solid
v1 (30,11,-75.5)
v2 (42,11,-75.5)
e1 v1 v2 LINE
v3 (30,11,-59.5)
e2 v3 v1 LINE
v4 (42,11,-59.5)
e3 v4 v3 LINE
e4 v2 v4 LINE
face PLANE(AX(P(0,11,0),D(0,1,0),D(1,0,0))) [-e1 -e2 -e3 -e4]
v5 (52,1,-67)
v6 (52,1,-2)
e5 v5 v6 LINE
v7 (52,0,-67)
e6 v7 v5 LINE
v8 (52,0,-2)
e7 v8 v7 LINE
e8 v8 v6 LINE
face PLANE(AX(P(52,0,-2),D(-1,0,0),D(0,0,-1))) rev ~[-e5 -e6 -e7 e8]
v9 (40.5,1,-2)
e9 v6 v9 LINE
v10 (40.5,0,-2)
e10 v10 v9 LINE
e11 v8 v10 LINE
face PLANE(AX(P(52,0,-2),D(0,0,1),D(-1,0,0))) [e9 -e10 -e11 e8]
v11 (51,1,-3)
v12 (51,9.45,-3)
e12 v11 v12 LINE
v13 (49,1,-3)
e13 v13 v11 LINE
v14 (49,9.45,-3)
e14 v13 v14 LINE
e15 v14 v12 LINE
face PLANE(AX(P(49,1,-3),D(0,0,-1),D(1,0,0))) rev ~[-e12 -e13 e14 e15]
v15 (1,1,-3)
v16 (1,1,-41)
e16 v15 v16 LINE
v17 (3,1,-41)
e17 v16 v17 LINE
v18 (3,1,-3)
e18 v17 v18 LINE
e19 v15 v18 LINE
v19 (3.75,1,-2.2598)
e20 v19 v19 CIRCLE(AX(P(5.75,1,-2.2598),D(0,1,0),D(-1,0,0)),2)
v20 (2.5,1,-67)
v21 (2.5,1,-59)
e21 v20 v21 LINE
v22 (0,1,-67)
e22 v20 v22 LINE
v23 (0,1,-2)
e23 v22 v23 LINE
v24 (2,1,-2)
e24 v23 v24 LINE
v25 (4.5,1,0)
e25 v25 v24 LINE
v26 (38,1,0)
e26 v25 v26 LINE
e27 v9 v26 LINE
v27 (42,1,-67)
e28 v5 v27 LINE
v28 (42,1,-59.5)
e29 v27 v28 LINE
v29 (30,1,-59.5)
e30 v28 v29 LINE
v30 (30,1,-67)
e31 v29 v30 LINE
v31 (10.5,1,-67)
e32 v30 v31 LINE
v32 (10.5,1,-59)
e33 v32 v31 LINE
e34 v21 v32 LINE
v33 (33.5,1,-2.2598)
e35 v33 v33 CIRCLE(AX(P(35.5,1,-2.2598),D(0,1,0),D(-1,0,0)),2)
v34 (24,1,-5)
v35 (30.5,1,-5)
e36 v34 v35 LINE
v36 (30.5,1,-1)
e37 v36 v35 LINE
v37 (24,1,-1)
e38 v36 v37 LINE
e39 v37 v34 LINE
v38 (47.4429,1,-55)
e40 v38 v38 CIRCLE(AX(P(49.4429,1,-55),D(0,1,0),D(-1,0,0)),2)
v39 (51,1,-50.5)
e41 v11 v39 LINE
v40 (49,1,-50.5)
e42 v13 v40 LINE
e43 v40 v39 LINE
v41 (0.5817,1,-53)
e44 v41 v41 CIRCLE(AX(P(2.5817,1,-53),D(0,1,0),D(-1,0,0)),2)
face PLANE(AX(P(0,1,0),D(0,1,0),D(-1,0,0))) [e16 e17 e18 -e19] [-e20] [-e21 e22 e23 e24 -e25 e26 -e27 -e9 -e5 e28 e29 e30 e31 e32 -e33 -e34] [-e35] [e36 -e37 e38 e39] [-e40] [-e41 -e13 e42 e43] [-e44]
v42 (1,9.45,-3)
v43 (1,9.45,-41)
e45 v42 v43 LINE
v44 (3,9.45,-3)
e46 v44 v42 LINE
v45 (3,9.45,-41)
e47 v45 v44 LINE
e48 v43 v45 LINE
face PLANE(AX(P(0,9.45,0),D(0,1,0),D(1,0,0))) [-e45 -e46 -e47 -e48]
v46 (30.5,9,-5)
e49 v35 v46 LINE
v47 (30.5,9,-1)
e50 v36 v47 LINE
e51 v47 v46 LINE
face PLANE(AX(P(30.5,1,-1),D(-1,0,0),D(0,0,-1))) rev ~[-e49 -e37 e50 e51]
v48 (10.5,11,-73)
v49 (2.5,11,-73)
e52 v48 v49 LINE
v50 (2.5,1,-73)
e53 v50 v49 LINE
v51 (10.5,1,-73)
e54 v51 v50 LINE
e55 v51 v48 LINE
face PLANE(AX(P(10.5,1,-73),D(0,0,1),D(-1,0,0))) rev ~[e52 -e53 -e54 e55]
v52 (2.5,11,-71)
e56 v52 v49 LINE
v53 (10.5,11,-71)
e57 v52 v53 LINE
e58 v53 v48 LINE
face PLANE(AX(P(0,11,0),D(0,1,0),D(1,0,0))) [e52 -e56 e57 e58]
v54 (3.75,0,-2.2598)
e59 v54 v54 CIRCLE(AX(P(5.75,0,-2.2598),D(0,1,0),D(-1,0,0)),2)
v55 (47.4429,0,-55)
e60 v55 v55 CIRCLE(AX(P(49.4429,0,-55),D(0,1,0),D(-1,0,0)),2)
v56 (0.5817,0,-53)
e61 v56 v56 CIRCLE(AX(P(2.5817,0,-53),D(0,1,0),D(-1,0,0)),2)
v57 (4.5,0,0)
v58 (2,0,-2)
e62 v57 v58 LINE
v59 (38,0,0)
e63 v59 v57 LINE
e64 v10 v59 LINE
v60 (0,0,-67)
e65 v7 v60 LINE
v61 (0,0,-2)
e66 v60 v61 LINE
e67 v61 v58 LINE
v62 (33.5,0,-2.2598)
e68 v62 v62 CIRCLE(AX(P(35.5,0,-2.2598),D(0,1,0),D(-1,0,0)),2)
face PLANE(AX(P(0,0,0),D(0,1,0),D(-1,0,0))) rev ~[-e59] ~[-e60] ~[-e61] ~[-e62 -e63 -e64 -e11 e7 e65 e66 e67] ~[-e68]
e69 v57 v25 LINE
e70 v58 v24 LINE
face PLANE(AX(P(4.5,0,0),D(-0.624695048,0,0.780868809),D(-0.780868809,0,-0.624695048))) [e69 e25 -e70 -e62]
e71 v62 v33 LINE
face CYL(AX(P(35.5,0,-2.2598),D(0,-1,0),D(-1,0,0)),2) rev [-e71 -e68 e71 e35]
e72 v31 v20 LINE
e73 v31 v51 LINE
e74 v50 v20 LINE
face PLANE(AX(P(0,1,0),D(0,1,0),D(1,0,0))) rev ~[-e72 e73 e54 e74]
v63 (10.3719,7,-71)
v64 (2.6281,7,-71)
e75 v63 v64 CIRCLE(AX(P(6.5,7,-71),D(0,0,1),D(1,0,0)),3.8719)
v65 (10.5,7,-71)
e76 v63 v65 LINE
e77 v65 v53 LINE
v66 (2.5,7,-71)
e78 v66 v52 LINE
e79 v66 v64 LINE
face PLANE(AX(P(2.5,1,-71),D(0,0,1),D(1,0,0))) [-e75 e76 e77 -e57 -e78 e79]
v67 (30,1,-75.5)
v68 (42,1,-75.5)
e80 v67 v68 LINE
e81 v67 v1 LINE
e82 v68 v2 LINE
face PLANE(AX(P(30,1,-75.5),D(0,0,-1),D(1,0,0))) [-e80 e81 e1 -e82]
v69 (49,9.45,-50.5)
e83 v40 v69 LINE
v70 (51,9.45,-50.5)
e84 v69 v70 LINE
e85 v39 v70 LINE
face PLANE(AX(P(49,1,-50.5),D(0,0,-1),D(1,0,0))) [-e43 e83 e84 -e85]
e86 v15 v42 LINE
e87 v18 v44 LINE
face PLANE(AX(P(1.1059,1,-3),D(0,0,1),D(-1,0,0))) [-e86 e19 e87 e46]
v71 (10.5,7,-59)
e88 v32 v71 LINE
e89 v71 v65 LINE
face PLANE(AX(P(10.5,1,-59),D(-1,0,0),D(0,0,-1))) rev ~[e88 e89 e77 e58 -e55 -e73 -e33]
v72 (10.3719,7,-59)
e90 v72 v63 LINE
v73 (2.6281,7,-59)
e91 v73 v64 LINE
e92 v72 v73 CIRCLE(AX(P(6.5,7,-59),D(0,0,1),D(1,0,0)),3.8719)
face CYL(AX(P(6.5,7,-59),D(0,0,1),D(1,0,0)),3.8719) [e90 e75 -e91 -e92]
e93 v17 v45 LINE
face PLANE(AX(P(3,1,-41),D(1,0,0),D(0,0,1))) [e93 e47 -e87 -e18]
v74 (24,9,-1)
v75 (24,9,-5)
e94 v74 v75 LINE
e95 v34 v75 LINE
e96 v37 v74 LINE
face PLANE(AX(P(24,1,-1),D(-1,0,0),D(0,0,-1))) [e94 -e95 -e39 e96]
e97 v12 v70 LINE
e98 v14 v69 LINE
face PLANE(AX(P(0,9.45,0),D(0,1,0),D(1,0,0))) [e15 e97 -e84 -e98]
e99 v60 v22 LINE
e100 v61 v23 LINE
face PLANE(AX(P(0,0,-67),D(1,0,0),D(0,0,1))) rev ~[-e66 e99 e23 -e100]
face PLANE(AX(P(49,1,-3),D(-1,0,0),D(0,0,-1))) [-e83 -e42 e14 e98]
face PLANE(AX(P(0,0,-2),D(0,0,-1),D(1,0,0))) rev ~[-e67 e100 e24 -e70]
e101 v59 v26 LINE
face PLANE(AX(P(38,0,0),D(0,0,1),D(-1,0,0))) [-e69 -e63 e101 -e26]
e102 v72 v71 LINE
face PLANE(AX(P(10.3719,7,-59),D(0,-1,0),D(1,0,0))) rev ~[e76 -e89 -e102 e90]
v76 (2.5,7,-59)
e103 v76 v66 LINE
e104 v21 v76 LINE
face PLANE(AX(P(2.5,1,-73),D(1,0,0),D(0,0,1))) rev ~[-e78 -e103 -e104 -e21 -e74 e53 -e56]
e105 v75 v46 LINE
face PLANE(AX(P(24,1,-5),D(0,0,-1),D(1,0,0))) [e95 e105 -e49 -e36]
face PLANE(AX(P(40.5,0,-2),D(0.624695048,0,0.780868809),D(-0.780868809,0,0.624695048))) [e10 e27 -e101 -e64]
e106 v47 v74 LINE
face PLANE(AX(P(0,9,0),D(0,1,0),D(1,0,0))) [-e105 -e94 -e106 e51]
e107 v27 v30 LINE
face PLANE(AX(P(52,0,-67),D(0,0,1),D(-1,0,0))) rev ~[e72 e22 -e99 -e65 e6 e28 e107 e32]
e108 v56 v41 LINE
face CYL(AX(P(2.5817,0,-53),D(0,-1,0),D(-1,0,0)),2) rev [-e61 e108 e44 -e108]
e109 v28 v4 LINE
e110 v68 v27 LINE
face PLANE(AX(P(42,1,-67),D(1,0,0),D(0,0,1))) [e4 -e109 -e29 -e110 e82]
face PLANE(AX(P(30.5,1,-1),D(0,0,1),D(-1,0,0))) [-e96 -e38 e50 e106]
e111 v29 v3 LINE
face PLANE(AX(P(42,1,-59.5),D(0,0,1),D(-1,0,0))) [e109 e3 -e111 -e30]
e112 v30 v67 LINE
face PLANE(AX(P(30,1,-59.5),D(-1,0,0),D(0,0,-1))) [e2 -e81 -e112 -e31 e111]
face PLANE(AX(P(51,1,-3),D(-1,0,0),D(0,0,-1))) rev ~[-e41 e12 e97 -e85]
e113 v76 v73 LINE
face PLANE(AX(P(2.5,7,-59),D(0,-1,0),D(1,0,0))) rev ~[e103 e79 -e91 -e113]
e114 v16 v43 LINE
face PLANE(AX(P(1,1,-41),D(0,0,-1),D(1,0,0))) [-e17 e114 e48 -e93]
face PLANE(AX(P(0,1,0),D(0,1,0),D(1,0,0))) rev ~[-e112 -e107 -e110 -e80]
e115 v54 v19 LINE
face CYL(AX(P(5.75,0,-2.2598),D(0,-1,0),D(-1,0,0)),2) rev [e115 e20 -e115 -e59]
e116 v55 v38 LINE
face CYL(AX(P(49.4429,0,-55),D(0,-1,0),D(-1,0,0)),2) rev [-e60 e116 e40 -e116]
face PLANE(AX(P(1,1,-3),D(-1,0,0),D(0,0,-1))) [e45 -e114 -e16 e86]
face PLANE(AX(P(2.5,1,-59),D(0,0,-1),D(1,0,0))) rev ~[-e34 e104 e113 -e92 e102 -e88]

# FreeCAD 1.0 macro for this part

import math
import FreeCAD as App
import Part
import Sketcher

V = App.Vector
Q = App.Units.Quantity

doc = App.newDocument("Part")
body = doc.addObject("PartDesign::Body", "Body")

sketch1 = doc.addObject("Sketcher::SketchObject", "Sketch")
body.addObject(sketch1)
sketch1.AttachmentSupport = (doc.XZ_Plane, [""])
sketch1.MapMode = "FlatFace"
sketch1.addGeometry(Part.LineSegment(V(40.5, -2, 0), V(52, -2, 0)), False)
sketch1.addGeometry(Part.LineSegment(V(52, -2, 0), V(52, -67, 0)), False)
sketch1.addGeometry(Part.LineSegment(V(52, -67, 0), V(0, -67, 0)), False)
sketch1.addGeometry(Part.LineSegment(V(0, -67, 0), V(0, -2, 0)), False)
sketch1.addGeometry(Part.LineSegment(V(0, -2, 0), V(2, -2, 0)), False)
sketch1.addGeometry(Part.LineSegment(V(2, -2, 0), V(4.5, 0, 0)), False)
sketch1.addGeometry(Part.LineSegment(V(4.5, 0, 0), V(38, 0, 0)), False)
sketch1.addGeometry(Part.LineSegment(V(38, 0, 0), V(40.5, -2, 0)), False)
sketch1.addGeometry(Part.Circle(V(49.4, -55, 0), V(0, 0, 1), 2), False)
sketch1.addGeometry(Part.Circle(V(2.6, -53, 0), V(0, 0, 1), 2), False)
sketch1.addGeometry(Part.Circle(V(35.5, -2.3, 0), V(0, 0, 1), 2), False)
sketch1.addGeometry(Part.Circle(V(5.8, -2.3, 0), V(0, 0, 1), 2), False)
sketch1.addConstraint(Sketcher.Constraint("Coincident", 0, 2, 1, 1))
sketch1.addConstraint(Sketcher.Constraint("Coincident", 1, 2, 2, 1))
sketch1.addConstraint(Sketcher.Constraint("Coincident", 2, 2, 3, 1))
sketch1.addConstraint(Sketcher.Constraint("Coincident", 3, 2, 4, 1))
sketch1.addConstraint(Sketcher.Constraint("Coincident", 4, 2, 5, 1))
sketch1.addConstraint(Sketcher.Constraint("Coincident", 5, 2, 6, 1))
sketch1.addConstraint(Sketcher.Constraint("Coincident", 6, 2, 7, 1))
sketch1.addConstraint(Sketcher.Constraint("Coincident", 7, 2, 0, 1))
sketch1.addConstraint(Sketcher.Constraint("Horizontal", 0))
sketch1.addConstraint(Sketcher.Constraint("Vertical", 1))
sketch1.addConstraint(Sketcher.Constraint("Horizontal", 2))
sketch1.addConstraint(Sketcher.Constraint("Vertical", 3))
sketch1.addConstraint(Sketcher.Constraint("Horizontal", 4))
sketch1.addConstraint(Sketcher.Constraint("Horizontal", 6))
sketch1.addConstraint(Sketcher.Constraint("Equal", 8, 9))
sketch1.addConstraint(Sketcher.Constraint("Equal", 9, 10))
sketch1.addConstraint(Sketcher.Constraint("Equal", 10, 11))
sketch1.addConstraint(Sketcher.Constraint("PointOnObject", 2, 2, -2))
sketch1.addConstraint(Sketcher.Constraint("PointOnObject", 5, 2, -1))
sketch1.addConstraint(Sketcher.Constraint("Horizontal", 10, 3, 11, 3))
sketch1.addConstraint(Sketcher.Constraint("Horizontal", 0, 2, 3, 2))
sketch1.addConstraint(Sketcher.Constraint("Equal", 5, 7))
sketch1.addConstraint(Sketcher.Constraint("Diameter", 8, Q("4 mm")))
sketch1.addConstraint(Sketcher.Constraint("DistanceX", 2, 2, 2, 1, Q("52 mm")))
sketch1.addConstraint(Sketcher.Constraint("DistanceX", 4, 1, 4, 2, Q("2 mm")))
sketch1.addConstraint(Sketcher.Constraint("DistanceY", 1, 2, 1, 1, Q("65 mm")))
sketch1.addConstraint(Sketcher.Constraint("DistanceX", 0, 1, 0, 2, Q("11.5 mm")))
sketch1.addConstraint(Sketcher.Constraint("DistanceX", 6, 1, 6, 2, Q("33.5 mm")))
sketch1.addConstraint(Sketcher.Constraint("DistanceY", 8, 3, -1, 1, Q("55 mm")))
sketch1.addConstraint(Sketcher.Constraint("DistanceY", 9, 3, -1, 1, Q("53 mm")))
sketch1.addConstraint(Sketcher.Constraint("DistanceY", 0, 2, -1, 1, Q("2 mm")))
sketch1.addConstraint(Sketcher.Constraint("DistanceX", 5, 2, 10, 3, Q("31 mm")))
sketch1.addConstraint(Sketcher.Constraint("DistanceX", -1, 1, 11, 3, Q("5.75 mm")))
sketch1.addConstraint(Sketcher.Constraint("DistanceX", -1, 1, 8, 3, Q("49.443 mm")))
sketch1.addConstraint(Sketcher.Constraint("DistanceX", -1, 1, 9, 3, Q("2.5817 mm")))
sketch1.addConstraint(Sketcher.Constraint("DistanceY", 10, 3, -1, 1, Q("2.2598 mm")))
pad1 = doc.addObject("PartDesign::Pad", "Pad")
body.addObject(pad1)
pad1.Profile = sketch1
pad1.Length = 1
pad1.Reversed = True

sketch2 = doc.addObject("Sketcher::SketchObject", "Sketch001")
body.addObject(sketch2)
sketch2.AttachmentSupport = (doc.XZ_Plane, [""])
sketch2.MapMode = "FlatFace"
sketch2.AttachmentOffset = App.Placement(V(0, 0, -1), App.Rotation())
sketch2.addGeometry(Part.LineSegment(V(49, -50.5, 0), V(49, -3, 0)), False)
sketch2.addGeometry(Part.LineSegment(V(49, -3, 0), V(51, -3, 0)), False)
sketch2.addGeometry(Part.LineSegment(V(51, -3, 0), V(51, -50.5, 0)), False)
sketch2.addGeometry(Part.LineSegment(V(51, -50.5, 0), V(49, -50.5, 0)), False)
sketch2.addGeometry(Part.LineSegment(V(1, -3, 0), V(3, -3, 0)), False)
sketch2.addGeometry(Part.LineSegment(V(3, -3, 0), V(3, -41, 0)), False)
sketch2.addGeometry(Part.LineSegment(V(3, -41, 0), V(1, -41, 0)), False)
sketch2.addGeometry(Part.LineSegment(V(1, -41, 0), V(1, -3, 0)), False)
sketch2.addConstraint(Sketcher.Constraint("Coincident", 0, 2, 1, 1))
sketch2.addConstraint(Sketcher.Constraint("Coincident", 1, 2, 2, 1))
sketch2.addConstraint(Sketcher.Constraint("Coincident", 2, 2, 3, 1))
sketch2.addConstraint(Sketcher.Constraint("Coincident", 3, 2, 0, 1))
sketch2.addConstraint(Sketcher.Constraint("Coincident", 4, 2, 5, 1))
sketch2.addConstraint(Sketcher.Constraint("Coincident", 5, 2, 6, 1))
sketch2.addConstraint(Sketcher.Constraint("Coincident", 6, 2, 7, 1))
sketch2.addConstraint(Sketcher.Constraint("Coincident", 7, 2, 4, 1))
sketch2.addConstraint(Sketcher.Constraint("Vertical", 0))
sketch2.addConstraint(Sketcher.Constraint("Horizontal", 1))
sketch2.addConstraint(Sketcher.Constraint("Vertical", 2))
sketch2.addConstraint(Sketcher.Constraint("Horizontal", 3))
sketch2.addConstraint(Sketcher.Constraint("Horizontal", 4))
sketch2.addConstraint(Sketcher.Constraint("Vertical", 5))
sketch2.addConstraint(Sketcher.Constraint("Horizontal", 6))
sketch2.addConstraint(Sketcher.Constraint("Vertical", 7))
sketch2.addConstraint(Sketcher.Constraint("Horizontal", 1, 2, 4, 2))
sketch2.addConstraint(Sketcher.Constraint("Equal", 3, 4))
sketch2.addConstraint(Sketcher.Constraint("DistanceX", 1, 1, 1, 2, Q("2 mm")))
sketch2.addConstraint(Sketcher.Constraint("DistanceY", 5, 2, 5, 1, Q("38 mm")))
sketch2.addConstraint(Sketcher.Constraint("DistanceY", 0, 1, 0, 2, Q("47.5 mm")))
sketch2.addConstraint(Sketcher.Constraint("DistanceX", -1, 1, 0, 2, Q("49 mm")))
sketch2.addConstraint(Sketcher.Constraint("DistanceY", 0, 2, -1, 1, Q("3 mm")))
sketch2.addConstraint(Sketcher.Constraint("DistanceX", -1, 1, 4, 2, Q("3 mm")))
pad2 = doc.addObject("PartDesign::Pad", "Pad001")
body.addObject(pad2)
pad2.Profile = sketch2
pad2.Length = 8.45
pad2.Reversed = True

sketch3 = doc.addObject("Sketcher::SketchObject", "Sketch002")
body.addObject(sketch3)
sketch3.AttachmentSupport = (doc.XZ_Plane, [""])
sketch3.MapMode = "FlatFace"
sketch3.AttachmentOffset = App.Placement(V(0, 0, -1), App.Rotation())
sketch3.addGeometry(Part.LineSegment(V(24, -1, 0), V(30.5, -1, 0)), False)
sketch3.addGeometry(Part.LineSegment(V(30.5, -1, 0), V(30.5, -5, 0)), False)
sketch3.addGeometry(Part.LineSegment(V(30.5, -5, 0), V(24, -5, 0)), False)
sketch3.addGeometry(Part.LineSegment(V(24, -5, 0), V(24, -1, 0)), False)
sketch3.addConstraint(Sketcher.Constraint("Coincident", 0, 2, 1, 1))
sketch3.addConstraint(Sketcher.Constraint("Coincident", 1, 2, 2, 1))
sketch3.addConstraint(Sketcher.Constraint("Coincident", 2, 2, 3, 1))
sketch3.addConstraint(Sketcher.Constraint("Coincident", 3, 2, 0, 1))
sketch3.addConstraint(Sketcher.Constraint("Horizontal", 0))
sketch3.addConstraint(Sketcher.Constraint("Vertical", 1))
sketch3.addConstraint(Sketcher.Constraint("Horizontal", 2))
sketch3.addConstraint(Sketcher.Constraint("Vertical", 3))
sketch3.addConstraint(Sketcher.Constraint("DistanceY", 1, 2, 1, 1, Q("4 mm")))
sketch3.addConstraint(Sketcher.Constraint("DistanceX", 0, 1, 0, 2, Q("6.5 mm")))
sketch3.addConstraint(Sketcher.Constraint("DistanceY", 0, 2, -1, 1, Q("1 mm")))
sketch3.addConstraint(Sketcher.Constraint("DistanceX", -1, 1, 2, 2, Q("24 mm")))
pad3 = doc.addObject("PartDesign::Pad", "Pad002")
body.addObject(pad3)
pad3.Profile = sketch3
pad3.Length = 8
pad3.Reversed = True

sketch4 = doc.addObject("Sketcher::SketchObject", "Sketch003")
body.addObject(sketch4)
sketch4.AttachmentSupport = (doc.XZ_Plane, [""])
sketch4.MapMode = "FlatFace"
sketch4.AttachmentOffset = App.Placement(V(0, 0, -1), App.Rotation())
sketch4.addGeometry(Part.LineSegment(V(42, -60, 0), V(42, -76, 0)), False)
sketch4.addGeometry(Part.LineSegment(V(42, -76, 0), V(30, -76, 0)), False)
sketch4.addGeometry(Part.LineSegment(V(30, -76, 0), V(30, -60, 0)), False)
sketch4.addGeometry(Part.LineSegment(V(30, -60, 0), V(42, -60, 0)), False)
sketch4.addConstraint(Sketcher.Constraint("Coincident", 0, 2, 1, 1))
sketch4.addConstraint(Sketcher.Constraint("Coincident", 1, 2, 2, 1))
sketch4.addConstraint(Sketcher.Constraint("Coincident", 2, 2, 3, 1))
sketch4.addConstraint(Sketcher.Constraint("Coincident", 3, 2, 0, 1))
sketch4.addConstraint(Sketcher.Constraint("Vertical", 0))
sketch4.addConstraint(Sketcher.Constraint("Horizontal", 1))
sketch4.addConstraint(Sketcher.Constraint("Vertical", 2))
sketch4.addConstraint(Sketcher.Constraint("Horizontal", 3))
sketch4.addConstraint(Sketcher.Constraint("DistanceX", 1, 2, 1, 1, Q("12 mm")))
sketch4.addConstraint(Sketcher.Constraint("DistanceY", 0, 2, 0, 1, Q("16 mm")))
sketch4.addConstraint(Sketcher.Constraint("DistanceX", -1, 1, 0, 2, Q("42 mm")))
sketch4.addConstraint(Sketcher.Constraint("DistanceY", 0, 2, -1, 1, Q("75.5 mm")))
pad4 = doc.addObject("PartDesign::Pad", "Pad003")
body.addObject(pad4)
pad4.Profile = sketch4
pad4.Length = 10
pad4.Reversed = True

sketch5 = doc.addObject("Sketcher::SketchObject", "Sketch004")
body.addObject(sketch5)
sketch5.AttachmentSupport = (doc.XZ_Plane, [""])
sketch5.MapMode = "FlatFace"
sketch5.AttachmentOffset = App.Placement(V(0, 0, -1), App.Rotation())
sketch5.addGeometry(Part.LineSegment(V(2, -73, 0), V(2, -59, 0)), False)
sketch5.addGeometry(Part.LineSegment(V(2, -59, 0), V(10, -59, 0)), False)
sketch5.addGeometry(Part.LineSegment(V(10, -59, 0), V(10, -73, 0)), False)
sketch5.addGeometry(Part.LineSegment(V(10, -73, 0), V(2, -73, 0)), False)
sketch5.addConstraint(Sketcher.Constraint("Coincident", 0, 2, 1, 1))
sketch5.addConstraint(Sketcher.Constraint("Coincident", 1, 2, 2, 1))
sketch5.addConstraint(Sketcher.Constraint("Coincident", 2, 2, 3, 1))
sketch5.addConstraint(Sketcher.Constraint("Coincident", 3, 2, 0, 1))
sketch5.addConstraint(Sketcher.Constraint("Vertical", 0))
sketch5.addConstraint(Sketcher.Constraint("Horizontal", 1))
sketch5.addConstraint(Sketcher.Constraint("Vertical", 2))
sketch5.addConstraint(Sketcher.Constraint("Horizontal", 3))
sketch5.addConstraint(Sketcher.Constraint("DistanceX", 1, 1, 1, 2, Q("8 mm")))
sketch5.addConstraint(Sketcher.Constraint("DistanceY", 0, 1, 0, 2, Q("14 mm")))
sketch5.addConstraint(Sketcher.Constraint("DistanceY", 0, 2, -1, 1, Q("59 mm")))
sketch5.addConstraint(Sketcher.Constraint("DistanceX", -1, 1, 0, 2, Q("2.5 mm")))
pad5 = doc.addObject("PartDesign::Pad", "Pad004")
body.addObject(pad5)
pad5.Profile = sketch5
pad5.Length = 10
pad5.Reversed = True

sketch6 = doc.addObject("Sketcher::SketchObject", "Sketch005")
body.addObject(sketch6)
sketch6.AttachmentSupport = (doc.XY_Plane, [""])
sketch6.MapMode = "FlatFace"
sketch6.AttachmentOffset = App.Placement(V(0, 0, -59), App.Rotation())
sketch6.addGeometry(Part.LineSegment(V(10.5, 11, 0), V(2.5, 11, 0)), False)
sketch6.addGeometry(Part.LineSegment(V(2.5, 11, 0), V(2.5, 7, 0)), False)
sketch6.addGeometry(Part.LineSegment(V(2.5, 7, 0), V(2.63, 7, 0)), False)
sketch6.addGeometry(Part.ArcOfCircle(Part.Circle(V(6.5, 7, 0), V(0, 0, 1), 3.87), math.radians(0), math.radians(180)), False)
sketch6.addGeometry(Part.LineSegment(V(10.37, 7, 0), V(10.5, 7, 0)), False)
sketch6.addGeometry(Part.LineSegment(V(10.5, 7, 0), V(10.5, 11, 0)), False)
sketch6.addConstraint(Sketcher.Constraint("Coincident", 0, 2, 1, 1))
sketch6.addConstraint(Sketcher.Constraint("Coincident", 1, 2, 2, 1))
sketch6.addConstraint(Sketcher.Constraint("Coincident", 2, 2, 3, 2))
sketch6.addConstraint(Sketcher.Constraint("Coincident", 3, 1, 4, 1))
sketch6.addConstraint(Sketcher.Constraint("Coincident", 4, 2, 5, 1))
sketch6.addConstraint(Sketcher.Constraint("Coincident", 5, 2, 0, 1))
sketch6.addConstraint(Sketcher.Constraint("Horizontal", 0))
sketch6.addConstraint(Sketcher.Constraint("Vertical", 1))
sketch6.addConstraint(Sketcher.Constraint("Horizontal", 2))
sketch6.addConstraint(Sketcher.Constraint("Horizontal", 4))
sketch6.addConstraint(Sketcher.Constraint("Vertical", 5))
sketch6.addConstraint(Sketcher.Constraint("Horizontal", 3, 3, 1, 2))
sketch6.addConstraint(Sketcher.Constraint("Horizontal", 2, 2, 3, 1))
sketch6.addConstraint(Sketcher.Constraint("Equal", 2, 4))
sketch6.addConstraint(Sketcher.Constraint("DistanceX", 0, 2, 0, 1, Q("8 mm")))
sketch6.addConstraint(Sketcher.Constraint("DistanceY", 1, 2, 1, 1, Q("4 mm")))
sketch6.addConstraint(Sketcher.Constraint("DistanceY", -1, 1, 3, 3, Q("7 mm")))
sketch6.addConstraint(Sketcher.Constraint("Radius", 3, Q("3.872 mm")))
sketch6.addConstraint(Sketcher.Constraint("DistanceX", -1, 1, 3, 3, Q("6.5 mm")))
pocket1 = doc.addObject("PartDesign::Pocket", "Pocket")
body.addObject(pocket1)
pocket1.Profile = sketch6
pocket1.Length = 12

doc.recompute()
